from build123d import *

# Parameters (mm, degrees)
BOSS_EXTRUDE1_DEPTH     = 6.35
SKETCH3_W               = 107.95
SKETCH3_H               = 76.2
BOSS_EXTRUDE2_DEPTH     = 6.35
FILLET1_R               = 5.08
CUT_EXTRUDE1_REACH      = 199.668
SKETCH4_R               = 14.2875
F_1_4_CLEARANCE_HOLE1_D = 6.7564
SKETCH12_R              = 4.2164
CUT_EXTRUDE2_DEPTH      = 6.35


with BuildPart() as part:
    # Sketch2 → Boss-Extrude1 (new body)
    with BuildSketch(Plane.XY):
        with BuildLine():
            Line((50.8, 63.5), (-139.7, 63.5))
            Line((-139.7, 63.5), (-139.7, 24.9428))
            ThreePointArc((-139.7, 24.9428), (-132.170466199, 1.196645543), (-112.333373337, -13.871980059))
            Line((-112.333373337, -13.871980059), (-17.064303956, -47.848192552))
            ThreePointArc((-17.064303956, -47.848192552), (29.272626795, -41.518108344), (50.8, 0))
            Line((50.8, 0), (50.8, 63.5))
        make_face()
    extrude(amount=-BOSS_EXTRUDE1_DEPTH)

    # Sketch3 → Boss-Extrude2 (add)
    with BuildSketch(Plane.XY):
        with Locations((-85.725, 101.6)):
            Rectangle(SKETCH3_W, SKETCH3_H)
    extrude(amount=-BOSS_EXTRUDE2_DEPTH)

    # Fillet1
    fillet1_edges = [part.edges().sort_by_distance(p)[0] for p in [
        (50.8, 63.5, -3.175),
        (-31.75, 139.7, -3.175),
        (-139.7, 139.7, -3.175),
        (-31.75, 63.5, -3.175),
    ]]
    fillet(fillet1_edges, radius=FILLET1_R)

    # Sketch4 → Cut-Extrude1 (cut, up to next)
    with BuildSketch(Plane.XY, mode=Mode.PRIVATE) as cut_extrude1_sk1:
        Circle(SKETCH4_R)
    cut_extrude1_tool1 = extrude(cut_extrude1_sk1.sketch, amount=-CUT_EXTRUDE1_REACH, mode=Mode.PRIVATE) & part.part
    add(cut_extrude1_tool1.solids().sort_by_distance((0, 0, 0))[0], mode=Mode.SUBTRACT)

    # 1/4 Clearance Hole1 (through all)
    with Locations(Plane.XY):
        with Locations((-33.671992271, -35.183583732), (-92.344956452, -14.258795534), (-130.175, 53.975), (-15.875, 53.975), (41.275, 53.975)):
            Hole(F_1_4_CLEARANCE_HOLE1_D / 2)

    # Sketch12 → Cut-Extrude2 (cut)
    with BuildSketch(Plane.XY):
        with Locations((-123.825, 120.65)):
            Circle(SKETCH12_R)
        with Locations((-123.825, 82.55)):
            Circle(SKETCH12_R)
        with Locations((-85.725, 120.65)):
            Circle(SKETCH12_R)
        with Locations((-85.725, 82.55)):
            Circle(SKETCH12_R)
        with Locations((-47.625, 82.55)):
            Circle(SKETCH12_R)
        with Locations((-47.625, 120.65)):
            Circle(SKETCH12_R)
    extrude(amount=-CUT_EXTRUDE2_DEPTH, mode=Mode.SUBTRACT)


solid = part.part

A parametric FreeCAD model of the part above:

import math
import FreeCAD as App
import Part
import Sketcher
Q = App.Units.Quantity


def edges_at(feature, points):
    """Names of the edges that pass closest to the given points."""
    edges = feature.Shape.Edges
    near = lambda p: min(range(len(edges)), key=lambda i: edges[i].distToShape(Part.Vertex(*p))[0])
    return sorted({f"Edge{near(p) + 1}" for p in points})

doc = App.newDocument("Part")
body = doc.addObject("PartDesign::Body", "Body")

# Sketch on XY plane
sketch1 = body.newObject("Sketcher::SketchObject", "Sketch")
sketch1.AttachmentSupport = (doc.getObject("XY_Plane"), [""])
sketch1.MapMode = "FlatFace"
sketch1.addGeometry(Part.LineSegment(App.Vector(51, 64, 0), App.Vector(-140, 64, 0)), False)
sketch1.addGeometry(Part.LineSegment(App.Vector(-140, 64, 0), App.Vector(-140, 25, 0)), False)
sketch1.addGeometry(Part.ArcOfCircle(Part.Circle(App.Vector(-98, 25, 0), App.Vector(0, 0, 1), 41), math.radians(180), math.radians(250)), False)
sketch1.addGeometry(Part.LineSegment(App.Vector(-112, -14, 0), App.Vector(-17, -48, 0)), False)
sketch1.addGeometry(Part.ArcOfCircle(Part.Circle(App.Vector(0, 0, 0), App.Vector(0, 0, 1), 51), math.radians(-110), math.radians(0)), False)
sketch1.addGeometry(Part.LineSegment(App.Vector(51, 0, 0), App.Vector(51, 64, 0)), False)
sketch1.addConstraint(Sketcher.Constraint("Coincident", 0, 2, 1, 1))
sketch1.addConstraint(Sketcher.Constraint("Tangent", 1, 2, 2, 1))
sketch1.addConstraint(Sketcher.Constraint("Tangent", 2, 2, 3, 1))
sketch1.addConstraint(Sketcher.Constraint("Tangent", 3, 2, 4, 1))
sketch1.addConstraint(Sketcher.Constraint("Tangent", 4, 2, 5, 1))
sketch1.addConstraint(Sketcher.Constraint("Coincident", 5, 2, 0, 1))
sketch1.addConstraint(Sketcher.Constraint("Horizontal", 0))
sketch1.addConstraint(Sketcher.Constraint("Vertical", 1))
sketch1.addConstraint(Sketcher.Constraint("Vertical", 5))
sketch1.addConstraint(Sketcher.Constraint("Coincident", 4, 3, -1, 1))
sketch1.addConstraint(Sketcher.Constraint("Radius", 4, Q("2 in")))
sketch1.addConstraint(Sketcher.Constraint("DistanceX", 0, 2, 0, 1, Q("7.5 in")))
sketch1.addConstraint(Sketcher.Constraint("DistanceY", 5, 1, 5, 2, Q("2.5 in")))
sketch1.addConstraint(Sketcher.Constraint("DistanceY", 1, 2, 1, 1, Q("1.518 in")))
sketch1.addConstraint(Sketcher.Constraint("Radius", 2, Q("41.209306 mm")))
pad1 = body.newObject("PartDesign::Pad", "Pad")
pad1.Profile = sketch1
pad1.Length = Q("0.25 in")
pad1.Reversed = True

# Sketch on XY plane
sketch2 = body.newObject("Sketcher::SketchObject", "Sketch001")
sketch2.AttachmentSupport = (doc.getObject("XY_Plane"), [""])
sketch2.MapMode = "FlatFace"
sketch2.addGeometry(Part.LineSegment(App.Vector(-140, 140, 0), App.Vector(-140, 64, 0)), False)
sketch2.addGeometry(Part.LineSegment(App.Vector(-140, 64, 0), App.Vector(-32, 64, 0)), False)
sketch2.addGeometry(Part.LineSegment(App.Vector(-32, 64, 0), App.Vector(-32, 140, 0)), False)
sketch2.addGeometry(Part.LineSegment(App.Vector(-32, 140, 0), App.Vector(-140, 140, 0)), False)
sketch2.addConstraint(Sketcher.Constraint("Coincident", 0, 2, 1, 1))
sketch2.addConstraint(Sketcher.Constraint("Coincident", 1, 2, 2, 1))
sketch2.addConstraint(Sketcher.Constraint("Coincident", 2, 2, 3, 1))
sketch2.addConstraint(Sketcher.Constraint("Coincident", 3, 2, 0, 1))
sketch2.addConstraint(Sketcher.Constraint("Vertical", 0))
sketch2.addConstraint(Sketcher.Constraint("Horizontal", 1))
sketch2.addConstraint(Sketcher.Constraint("Vertical", 2))
sketch2.addConstraint(Sketcher.Constraint("Horizontal", 3))
sketch2.addConstraint(Sketcher.Constraint("DistanceY", 0, 2, 0, 1, Q("3 in")))
sketch2.addConstraint(Sketcher.Constraint("DistanceX", 1, 1, 1, 2, Q("4.25 in")))
sketch2.addConstraint(Sketcher.Constraint("DistanceX", 0, 2, -1, 1, Q("5.5 in")))
sketch2.addConstraint(Sketcher.Constraint("DistanceY", -1, 1, 0, 2, Q("2.5 in")))
pad2 = body.newObject("PartDesign::Pad", "Pad001")
pad2.Profile = sketch2
pad2.Length = Q("0.25 in")
pad2.Reversed = True
doc.recompute()

fillet = body.newObject("PartDesign::Fillet", "Fillet")
fillet.Base = (pad2, edges_at(pad2, [
    (50.8, 63.5, -3.175),
    (-31.75, 139.7, -3.175),
    (-139.7, 139.7, -3.175),
    (-31.75, 63.5, -3.175),
]))
fillet.Radius = Q("0.2 in")

# Sketch on XY plane
sketch3 = body.newObject("Sketcher::SketchObject", "Sketch002")
sketch3.AttachmentSupport = (doc.getObject("XY_Plane"), [""])
sketch3.MapMode = "FlatFace"
sketch3.addGeometry(Part.Circle(App.Vector(0, 0, 0), App.Vector(0, 0, 1), 14), False)
sketch3.addConstraint(Sketcher.Constraint("Coincident", 0, 3, -1, 1))
sketch3.addConstraint(Sketcher.Constraint("Diameter", 0, Q("1.125 in")))
pocket1 = body.newObject("PartDesign::Pocket", "Pocket")
pocket1.Profile = sketch3
pocket1.Type = "UpToFirst"

# Sketch on XY plane
sketch4 = body.newObject("Sketcher::SketchObject", "Sketch003")
sketch4.AttachmentSupport = (doc.getObject("XY_Plane"), [""])
sketch4.MapMode = "FlatFace"
sketch4.addGeometry(Part.Circle(App.Vector(-33.7, -35.2, 0), App.Vector(0, 0, 1), 3.4), False)
sketch4.addGeometry(Part.Circle(App.Vector(-92.3, -14.3, 0), App.Vector(0, 0, 1), 3.4), False)
sketch4.addGeometry(Part.Circle(App.Vector(-130.2, 54, 0), App.Vector(0, 0, 1), 3.4), False)
sketch4.addGeometry(Part.Circle(App.Vector(-15.9, 54, 0), App.Vector(0, 0, 1), 3.4), False)
sketch4.addGeometry(Part.Circle(App.Vector(41.3, 54, 0), App.Vector(0, 0, 1), 3.4), False)
sketch4.addConstraint(Sketcher.Constraint("Equal", 0, 1))
sketch4.addConstraint(Sketcher.Constraint("Equal", 1, 2))
sketch4.addConstraint(Sketcher.Constraint("Equal", 2, 3))
sketch4.addConstraint(Sketcher.Constraint("Equal", 3, 4))
sketch4.addConstraint(Sketcher.Constraint("Horizontal", 2, 3, 3, 3))
sketch4.addConstraint(Sketcher.Constraint("Horizontal", 3, 3, 4, 3))
sketch4.addConstraint(Sketcher.Constraint("Diameter", 0, Q("0.266 in")))
sketch4.addConstraint(Sketcher.Constraint("DistanceX", 2, 3, 3, 3, Q("4.5 in")))
sketch4.addConstraint(Sketcher.Constraint("DistanceX", 3, 3, 4, 3, Q("2.25 in")))
sketch4.addConstraint(Sketcher.Constraint("DistanceX", 2, 3, -1, 1, Q("5.125 in")))
sketch4.addConstraint(Sketcher.Constraint("DistanceY", -1, 1, 2, 3, Q("2.125 in")))
sketch4.addConstraint(Sketcher.Constraint("DistanceY", 0, 3, 1, 3, Q("20.924788 mm")))
sketch4.addConstraint(Sketcher.Constraint("DistanceX", 0, 3, -1, 1, Q("33.671992 mm")))
sketch4.addConstraint(Sketcher.Constraint("DistanceY", 0, 3, -1, 1, Q("35.183584 mm")))
sketch4.addConstraint(Sketcher.Constraint("DistanceX", 1, 3, -1, 1, Q("92.344956 mm")))
doc.recompute()
hole = body.newObject("PartDesign::Hole", "Hole")
hole.Profile = sketch4
hole.ThreadType = "None"
hole.Diameter = Q("0.266 in")
hole.DepthType = "ThroughAll"

# Sketch on XY plane
sketch5 = body.newObject("Sketcher::SketchObject", "Sketch004")
sketch5.AttachmentSupport = (doc.getObject("XY_Plane"), [""])
sketch5.MapMode = "FlatFace"
sketch5.addGeometry(Part.Circle(App.Vector(-123.8, 120.7, 0), App.Vector(0, 0, 1), 4.2), False)
sketch5.addGeometry(Part.Circle(App.Vector(-123.8, 82.5, 0), App.Vector(0, 0, 1), 4.2), False)
sketch5.addGeometry(Part.Circle(App.Vector(-85.7, 120.7, 0), App.Vector(0, 0, 1), 4.2), False)
sketch5.addGeometry(Part.Circle(App.Vector(-85.7, 82.5, 0), App.Vector(0, 0, 1), 4.2), False)
sketch5.addGeometry(Part.Circle(App.Vector(-47.6, 82.5, 0), App.Vector(0, 0, 1), 4.2), False)
sketch5.addGeometry(Part.Circle(App.Vector(-47.6, 120.7, 0), App.Vector(0, 0, 1), 4.2), False)
sketch5.addConstraint(Sketcher.Constraint("Equal", 0, 1))
sketch5.addConstraint(Sketcher.Constraint("Equal", 1, 2))
sketch5.addConstraint(Sketcher.Constraint("Equal", 2, 3))
sketch5.addConstraint(Sketcher.Constraint("Equal", 3, 4))
sketch5.addConstraint(Sketcher.Constraint("Equal", 4, 5))
sketch5.addConstraint(Sketcher.Constraint("Horizontal", 0, 3, 2, 3))
sketch5.addConstraint(Sketcher.Constraint("Horizontal", 1, 3, 3, 3))
sketch5.addConstraint(Sketcher.Constraint("Horizontal", 3, 3, 4, 3))
sketch5.addConstraint(Sketcher.Constraint("Horizontal", 2, 3, 5, 3))
sketch5.addConstraint(Sketcher.Constraint("Vertical", 0, 3, 1, 3))
sketch5.addConstraint(Sketcher.Constraint("Vertical", 2, 3, 3, 3))
sketch5.addConstraint(Sketcher.Constraint("Vertical", 4, 3, 5, 3))
sketch5.addConstraint(Sketcher.Constraint("Diameter", 0, Q("0.332 in")))
sketch5.addConstraint(Sketcher.Constraint("DistanceX", 1, 3, 4, 3, Q("3 in")))
sketch5.addConstraint(Sketcher.Constraint("DistanceY", 1, 3, 0, 3, Q("1.5 in")))
sketch5.addConstraint(Sketcher.Constraint("DistanceX", 0, 3, 2, 3, Q("1.5 in")))
sketch5.addConstraint(Sketcher.Constraint("DistanceY", -1, 1, 0, 3, Q("4.75 in")))
sketch5.addConstraint(Sketcher.Constraint("DistanceX", 0, 3, -1, 1, Q("4.875 in")))
pocket2 = body.newObject("PartDesign::Pocket", "Pocket001")
pocket2.Profile = sketch5
pocket2.Length = Q("0.25 in")

doc.recompute()
